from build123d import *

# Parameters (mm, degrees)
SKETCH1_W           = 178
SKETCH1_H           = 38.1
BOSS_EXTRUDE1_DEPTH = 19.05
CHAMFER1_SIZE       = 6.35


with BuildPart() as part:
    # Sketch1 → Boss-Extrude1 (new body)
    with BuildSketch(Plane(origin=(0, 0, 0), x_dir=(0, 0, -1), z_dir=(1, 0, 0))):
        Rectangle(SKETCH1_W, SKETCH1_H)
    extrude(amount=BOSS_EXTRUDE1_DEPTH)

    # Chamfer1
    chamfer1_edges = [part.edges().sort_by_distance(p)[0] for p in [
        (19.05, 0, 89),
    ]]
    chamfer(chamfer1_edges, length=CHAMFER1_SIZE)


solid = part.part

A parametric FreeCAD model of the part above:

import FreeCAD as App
import Part
import Sketcher
from FreeCAD import Vector
Q = App.Units.Quantity


def edges_at(feature, points):
    """Names of the edges that pass closest to the given points."""
    edges = feature.Shape.Edges
    near = lambda p: min(range(len(edges)), key=lambda i: edges[i].distToShape(Part.Vertex(*p))[0])
    return sorted({f"Edge{near(p) + 1}" for p in points})


def add_polygon(sketch, points):
    """Adds a closed chain of lines whose ends are joined by coincident constraints."""
    first, n = sketch.GeometryCount, len(points)
    for a, b in zip(points, points[1:] + points[:1]):
        sketch.addGeometry(Part.LineSegment(App.Vector(*a, 0), App.Vector(*b, 0)), False)
    for i in range(n):
        sketch.addConstraint(Sketcher.Constraint("Coincident", first + i, 2, first + (i + 1) % n, 1))

doc = App.newDocument("Part")
body = doc.addObject("PartDesign::Body", "Body")

# Sketch on YZ plane
sketch1 = doc.addObject("Sketcher::SketchObject", "Sketch")
body.addObject(sketch1)
sketch1.AttachmentSupport = (doc.YZ_Plane, [""])
sketch1.MapMode = "FlatFace"
add_polygon(sketch1, [(19, 89), (-19, 89), (-19, -89), (19, -89)])  # lines 0-3
sketch1.addConstraint([
    Sketcher.Constraint("Horizontal", 0),
    Sketcher.Constraint("Vertical", 1),
    Sketcher.Constraint("Horizontal", 2),
    Sketcher.Constraint("Vertical", 3),
    Sketcher.Constraint("Symmetric", 0, 2, 2, 2, -1, 1),
    Sketcher.Constraint("DistanceX", 0, 2, 0, 1, Q("1.5 in")),
    Sketcher.Constraint("DistanceY", 1, 2, 1, 1, 178.0),
])
pad1 = doc.addObject("PartDesign::Pad", "Pad")
body.addObject(pad1)
pad1.Profile = sketch1
pad1.Length = Q("0.75 in")
doc.recompute()

chamfer = doc.addObject("PartDesign::Chamfer", "Chamfer")
body.addObject(chamfer)
chamfer.Base = (pad1, edges_at(pad1, [(19.05, 0, 89)]))
chamfer.Size = Q("0.25 in")

doc.recompute()
